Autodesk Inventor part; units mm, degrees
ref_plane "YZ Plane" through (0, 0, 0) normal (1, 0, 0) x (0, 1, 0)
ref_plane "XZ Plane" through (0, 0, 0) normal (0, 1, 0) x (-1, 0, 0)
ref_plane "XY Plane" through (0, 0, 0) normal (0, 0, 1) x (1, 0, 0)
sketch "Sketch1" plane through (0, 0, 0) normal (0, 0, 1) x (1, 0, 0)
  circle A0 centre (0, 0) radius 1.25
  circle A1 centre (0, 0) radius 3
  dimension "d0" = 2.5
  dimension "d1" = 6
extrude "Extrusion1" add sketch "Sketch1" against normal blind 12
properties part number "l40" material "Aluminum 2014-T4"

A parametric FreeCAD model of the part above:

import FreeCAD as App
import Part
import Sketcher
from FreeCAD import Vector
Q = App.Units.Quantity

doc = App.newDocument("Part")
params = doc.addObject("Spreadsheet::Sheet", "Params")
for row, (alias, value) in enumerate([
    ("sketch1_diameter", "6 mm"),
    ("sketch1_diameter2", "2.5 mm"),
    ("pad1_length", "12 mm"),
], start=1):
    params.set(f"A{row}", alias)
    params.set(f"B{row}", "=" + value)
    params.setAlias(f"B{row}", alias)

body = doc.addObject("PartDesign::Body", "Body")

sketch1 = body.newObject("Sketcher::SketchObject", "Sketch")
sketch1.AttachmentSupport = (doc.getObject("XY_Plane"), [""])
sketch1.MapMode = "FlatFace"
sketch1.addGeometry(Part.Circle(Vector(0, 0, 0), Vector(0, 0, 1), 3), False)
sketch1.addGeometry(Part.Circle(Vector(0, 0, 0), Vector(0, 0, 1), 1.25), False)
sketch1.addConstraint(Sketcher.Constraint("Coincident", 0, 3, -1, 1))
sketch1.addConstraint(Sketcher.Constraint("Coincident", 1, 3, -1, 1))
sketch1.addConstraint(Sketcher.Constraint("Diameter", 0, Q("6 mm")))
sketch1.addConstraint(Sketcher.Constraint("Diameter", 1, Q("2.5 mm")))
sketch1.setExpression("Constraints[2]", "Params.sketch1_diameter")
sketch1.setExpression("Constraints[3]", "Params.sketch1_diameter2")
pad1 = body.newObject("PartDesign::Pad", "Pad")
pad1.Profile = sketch1
pad1.setExpression("Length", "Params.pad1_length")
pad1.Reversed = True

doc.recompute()
